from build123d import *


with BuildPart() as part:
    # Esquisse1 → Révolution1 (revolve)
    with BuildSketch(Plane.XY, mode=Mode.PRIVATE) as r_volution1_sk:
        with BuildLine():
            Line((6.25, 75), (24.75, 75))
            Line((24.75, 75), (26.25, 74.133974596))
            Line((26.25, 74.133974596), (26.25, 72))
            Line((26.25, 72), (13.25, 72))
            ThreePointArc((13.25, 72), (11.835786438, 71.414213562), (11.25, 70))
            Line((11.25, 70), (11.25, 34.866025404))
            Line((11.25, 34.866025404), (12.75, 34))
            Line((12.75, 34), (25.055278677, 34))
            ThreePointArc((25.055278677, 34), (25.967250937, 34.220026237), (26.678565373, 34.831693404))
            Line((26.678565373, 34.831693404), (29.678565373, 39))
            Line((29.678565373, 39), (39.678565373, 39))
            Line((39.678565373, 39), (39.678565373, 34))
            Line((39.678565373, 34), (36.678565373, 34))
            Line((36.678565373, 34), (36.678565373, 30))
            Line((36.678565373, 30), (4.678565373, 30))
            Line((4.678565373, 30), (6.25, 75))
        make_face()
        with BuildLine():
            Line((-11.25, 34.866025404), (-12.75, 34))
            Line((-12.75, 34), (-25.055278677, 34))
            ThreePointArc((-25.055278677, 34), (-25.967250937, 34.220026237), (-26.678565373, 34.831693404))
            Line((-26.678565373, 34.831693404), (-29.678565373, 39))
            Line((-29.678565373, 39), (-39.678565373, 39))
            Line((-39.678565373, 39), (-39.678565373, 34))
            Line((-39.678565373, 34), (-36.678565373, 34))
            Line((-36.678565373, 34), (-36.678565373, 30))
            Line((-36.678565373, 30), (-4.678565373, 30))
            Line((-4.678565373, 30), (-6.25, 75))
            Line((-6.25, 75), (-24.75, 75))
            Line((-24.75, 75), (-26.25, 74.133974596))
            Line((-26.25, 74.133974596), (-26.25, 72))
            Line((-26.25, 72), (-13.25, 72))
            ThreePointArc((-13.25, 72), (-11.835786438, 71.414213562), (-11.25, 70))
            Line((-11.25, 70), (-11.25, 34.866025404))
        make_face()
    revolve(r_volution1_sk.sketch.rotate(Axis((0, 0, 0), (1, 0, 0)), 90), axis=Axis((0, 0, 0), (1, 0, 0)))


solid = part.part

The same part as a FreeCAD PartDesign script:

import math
import FreeCAD as App
import Part
import Sketcher

V = App.Vector
Q = App.Units.Quantity

doc = App.newDocument("Part")
body = doc.addObject("PartDesign::Body", "Body")
body.AllowCompound = True

sketch1 = body.newObject("Sketcher::SketchObject", "Sketch")
sketch1.AttachmentSupport = (doc.getObject("XY_Plane"), [""])
sketch1.MapMode = "FlatFace"
sketch1.addGeometry(Part.LineSegment(V(24.8, 75, 0), V(6.2, 75, 0)), False)
sketch1.addGeometry(Part.LineSegment(V(6.2, 75, 0), V(4.7, 30, 0)), False)
sketch1.addGeometry(Part.LineSegment(V(4.7, 30, 0), V(36.7, 30, 0)), False)
sketch1.addGeometry(Part.LineSegment(V(36.7, 30, 0), V(36.7, 34, 0)), False)
sketch1.addGeometry(Part.LineSegment(V(36.7, 34, 0), V(39.7, 34, 0)), False)
sketch1.addGeometry(Part.LineSegment(V(39.7, 34, 0), V(39.7, 39, 0)), False)
sketch1.addGeometry(Part.LineSegment(V(39.7, 39, 0), V(29.7, 39, 0)), False)
sketch1.addGeometry(Part.LineSegment(V(29.7, 39, 0), V(26.7, 34.8, 0)), False)
sketch1.addGeometry(Part.ArcOfCircle(Part.Circle(V(25.1, 36, 0), V(0, 0, 1), 2), math.radians(-90), math.radians(-36)), False)
sketch1.addGeometry(Part.LineSegment(V(25.1, 34, 0), V(12.8, 34, 0)), False)
sketch1.addGeometry(Part.LineSegment(V(12.8, 34, 0), V(11.2, 34.9, 0)), False)
sketch1.addGeometry(Part.LineSegment(V(11.2, 34.9, 0), V(11.2, 70, 0)), False)
sketch1.addGeometry(Part.ArcOfCircle(Part.Circle(V(13.3, 70, 0), V(0, 0, 1), 2), math.radians(90), math.radians(180)), False)
sketch1.addGeometry(Part.LineSegment(V(13.2, 72, 0), V(26.2, 72, 0)), False)
sketch1.addGeometry(Part.LineSegment(V(26.2, 72, 0), V(26.2, 74.1, 0)), False)
sketch1.addGeometry(Part.LineSegment(V(26.2, 74.1, 0), V(24.8, 75, 0)), False)
sketch1.addGeometry(Part.LineSegment(V(-11.2, 34.9, 0), V(-12.8, 34, 0)), False)
sketch1.addGeometry(Part.LineSegment(V(-12.8, 34, 0), V(-25.1, 34, 0)), False)
sketch1.addGeometry(Part.ArcOfCircle(Part.Circle(V(-25.1, 36, 0), V(0, 0, 1), 2), math.radians(-144), math.radians(-90)), False)
sketch1.addGeometry(Part.LineSegment(V(-26.7, 34.8, 0), V(-29.7, 39, 0)), False)
sketch1.addGeometry(Part.LineSegment(V(-29.7, 39, 0), V(-39.7, 39, 0)), False)
sketch1.addGeometry(Part.LineSegment(V(-39.7, 39, 0), V(-39.7, 34, 0)), False)
sketch1.addGeometry(Part.LineSegment(V(-39.7, 34, 0), V(-36.7, 34, 0)), False)
sketch1.addGeometry(Part.LineSegment(V(-36.7, 34, 0), V(-36.7, 30, 0)), False)
sketch1.addGeometry(Part.LineSegment(V(-36.7, 30, 0), V(-4.7, 30, 0)), False)
sketch1.addGeometry(Part.LineSegment(V(-4.7, 30, 0), V(-6.2, 75, 0)), False)
sketch1.addGeometry(Part.LineSegment(V(-6.2, 75, 0), V(-24.8, 75, 0)), False)
sketch1.addGeometry(Part.LineSegment(V(-24.8, 75, 0), V(-26.2, 74.1, 0)), False)
sketch1.addGeometry(Part.LineSegment(V(-26.2, 74.1, 0), V(-26.2, 72, 0)), False)
sketch1.addGeometry(Part.LineSegment(V(-26.2, 72, 0), V(-13.2, 72, 0)), False)
sketch1.addGeometry(Part.ArcOfCircle(Part.Circle(V(-13.3, 70, 0), V(0, 0, 1), 2), math.radians(0), math.radians(90)), False)
sketch1.addGeometry(Part.LineSegment(V(-11.2, 70, 0), V(-11.2, 34.9, 0)), False)
sketch1.addConstraint(Sketcher.Constraint("Coincident", 0, 2, 1, 1))
sketch1.addConstraint(Sketcher.Constraint("Coincident", 1, 2, 2, 1))
sketch1.addConstraint(Sketcher.Constraint("Coincident", 2, 2, 3, 1))
sketch1.addConstraint(Sketcher.Constraint("Coincident", 3, 2, 4, 1))
sketch1.addConstraint(Sketcher.Constraint("Coincident", 4, 2, 5, 1))
sketch1.addConstraint(Sketcher.Constraint("Coincident", 5, 2, 6, 1))
sketch1.addConstraint(Sketcher.Constraint("Coincident", 6, 2, 7, 1))
sketch1.addConstraint(Sketcher.Constraint("Tangent", 7, 2, 8, 2))
sketch1.addConstraint(Sketcher.Constraint("Tangent", 8, 1, 9, 1))
sketch1.addConstraint(Sketcher.Constraint("Coincident", 9, 2, 10, 1))
sketch1.addConstraint(Sketcher.Constraint("Coincident", 10, 2, 11, 1))
sketch1.addConstraint(Sketcher.Constraint("Tangent", 11, 2, 12, 2))
sketch1.addConstraint(Sketcher.Constraint("Tangent", 12, 1, 13, 1))
sketch1.addConstraint(Sketcher.Constraint("Coincident", 13, 2, 14, 1))
sketch1.addConstraint(Sketcher.Constraint("Coincident", 14, 2, 15, 1))
sketch1.addConstraint(Sketcher.Constraint("Coincident", 15, 2, 0, 1))
sketch1.addConstraint(Sketcher.Constraint("Coincident", 16, 2, 17, 1))
sketch1.addConstraint(Sketcher.Constraint("Tangent", 17, 2, 18, 2))
sketch1.addConstraint(Sketcher.Constraint("Tangent", 18, 1, 19, 1))
sketch1.addConstraint(Sketcher.Constraint("Coincident", 19, 2, 20, 1))
sketch1.addConstraint(Sketcher.Constraint("Coincident", 20, 2, 21, 1))
sketch1.addConstraint(Sketcher.Constraint("Coincident", 21, 2, 22, 1))
sketch1.addConstraint(Sketcher.Constraint("Coincident", 22, 2, 23, 1))
sketch1.addConstraint(Sketcher.Constraint("Coincident", 23, 2, 24, 1))
sketch1.addConstraint(Sketcher.Constraint("Coincident", 24, 2, 25, 1))
sketch1.addConstraint(Sketcher.Constraint("Coincident", 25, 2, 26, 1))
sketch1.addConstraint(Sketcher.Constraint("Coincident", 26, 2, 27, 1))
sketch1.addConstraint(Sketcher.Constraint("Coincident", 27, 2, 28, 1))
sketch1.addConstraint(Sketcher.Constraint("Coincident", 28, 2, 29, 1))
sketch1.addConstraint(Sketcher.Constraint("Tangent", 29, 2, 30, 2))
sketch1.addConstraint(Sketcher.Constraint("Tangent", 30, 1, 31, 1))
sketch1.addConstraint(Sketcher.Constraint("Coincident", 31, 2, 16, 1))
sketch1.addConstraint(Sketcher.Constraint("Horizontal", 0))
sketch1.addConstraint(Sketcher.Constraint("Horizontal", 2))
sketch1.addConstraint(Sketcher.Constraint("Vertical", 3))
sketch1.addConstraint(Sketcher.Constraint("Horizontal", 4))
sketch1.addConstraint(Sketcher.Constraint("Vertical", 5))
sketch1.addConstraint(Sketcher.Constraint("Horizontal", 6))
sketch1.addConstraint(Sketcher.Constraint("Horizontal", 9))
sketch1.addConstraint(Sketcher.Constraint("Vertical", 11))
sketch1.addConstraint(Sketcher.Constraint("Horizontal", 13))
sketch1.addConstraint(Sketcher.Constraint("Vertical", 14))
sketch1.addConstraint(Sketcher.Constraint("Horizontal", 17))
sketch1.addConstraint(Sketcher.Constraint("Horizontal", 20))
sketch1.addConstraint(Sketcher.Constraint("Vertical", 21))
sketch1.addConstraint(Sketcher.Constraint("Horizontal", 22))
sketch1.addConstraint(Sketcher.Constraint("Vertical", 23))
sketch1.addConstraint(Sketcher.Constraint("Horizontal", 24))
sketch1.addConstraint(Sketcher.Constraint("Horizontal", 26))
sketch1.addConstraint(Sketcher.Constraint("Vertical", 28))
sketch1.addConstraint(Sketcher.Constraint("Horizontal", 29))
sketch1.addConstraint(Sketcher.Constraint("Vertical", 31))
sketch1.addConstraint(Sketcher.Constraint("Equal", 8, 12))
sketch1.addConstraint(Sketcher.Constraint("Equal", 12, 18))
sketch1.addConstraint(Sketcher.Constraint("Equal", 18, 30))
sketch1.addConstraint(Sketcher.Constraint("Symmetric", 8, 3, 18, 3, -2))
sketch1.addConstraint(Sketcher.Constraint("Symmetric", 12, 3, 30, 3, -2))
sketch1.addConstraint(Sketcher.Constraint("Symmetric", 6, 2, 19, 2, -2))
sketch1.addConstraint(Sketcher.Constraint("Symmetric", 4, 2, 21, 2, -2))
sketch1.addConstraint(Sketcher.Constraint("Symmetric", 2, 2, 23, 2, -2))
sketch1.addConstraint(Sketcher.Constraint("Symmetric", 0, 2, 25, 2, -2))
sketch1.addConstraint(Sketcher.Constraint("Symmetric", 14, 2, 27, 2, -2))
sketch1.addConstraint(Sketcher.Constraint("Parallel", 10, 15))
sketch1.addConstraint(Sketcher.Constraint("Parallel", 16, 27))
sketch1.addConstraint(Sketcher.Constraint("Horizontal", 4, 2, 8, 1))
sketch1.addConstraint(Sketcher.Constraint("Horizontal", 10, 2, 31, 2))
sketch1.addConstraint(Sketcher.Constraint("Equal", 9, 17))
sketch1.addConstraint(Sketcher.Constraint("Equal", 2, 24))
sketch1.addConstraint(Sketcher.Constraint("Equal", 10, 15))
sketch1.addConstraint(Sketcher.Constraint("Radius", 8, 2.0))
sketch1.addConstraint(Sketcher.Constraint("DistanceX", 2, 1, 2, 2, 32.0))
sketch1.addConstraint(Sketcher.Constraint("DistanceX", 4, 1, 4, 2, 3.0))
sketch1.addConstraint(Sketcher.Constraint("DistanceX", 6, 2, 6, 1, 10.0))
sketch1.addConstraint(Sketcher.Constraint("DistanceX", 13, 1, 13, 2, 13.0))
sketch1.addConstraint(Sketcher.Constraint("DistanceY", 3, 1, 3, 2, 4.0))
sketch1.addConstraint(Sketcher.Constraint("DistanceY", 5, 1, 5, 2, 5.0))
sketch1.addConstraint(Sketcher.Constraint("Angle", 1, Q("-92 deg")))
sketch1.addConstraint(Sketcher.Constraint("Angle", 10, Q("150 deg")))
sketch1.addConstraint(Sketcher.Constraint("DistanceX", 0, 2, 0, 1, 18.5))
sketch1.addConstraint(Sketcher.Constraint("DistanceY", -1, 1, 8, 3, 36.0))
sketch1.addConstraint(Sketcher.Constraint("DistanceY", -1, 1, 12, 3, 70.0))
sketch1.addConstraint(Sketcher.Constraint("DistanceY", -1, 1, 0, 2, 75.0))
sketch1.addConstraint(Sketcher.Constraint("DistanceX", 0, 2, 12, 3, 7.0))
sketch1.addConstraint(Sketcher.Constraint("DistanceX", 7, 2, 6, 2, 3.0))
sketch1.addConstraint(Sketcher.Constraint("DistanceX", 16, 2, 10, 2, 24.0))
revolution = body.newObject("PartDesign::Revolution", "Revolution")
revolution.Profile = sketch1
revolution.ReferenceAxis = (sketch1, ["H_Axis"])
revolution.Angle = 360

doc.recompute()
